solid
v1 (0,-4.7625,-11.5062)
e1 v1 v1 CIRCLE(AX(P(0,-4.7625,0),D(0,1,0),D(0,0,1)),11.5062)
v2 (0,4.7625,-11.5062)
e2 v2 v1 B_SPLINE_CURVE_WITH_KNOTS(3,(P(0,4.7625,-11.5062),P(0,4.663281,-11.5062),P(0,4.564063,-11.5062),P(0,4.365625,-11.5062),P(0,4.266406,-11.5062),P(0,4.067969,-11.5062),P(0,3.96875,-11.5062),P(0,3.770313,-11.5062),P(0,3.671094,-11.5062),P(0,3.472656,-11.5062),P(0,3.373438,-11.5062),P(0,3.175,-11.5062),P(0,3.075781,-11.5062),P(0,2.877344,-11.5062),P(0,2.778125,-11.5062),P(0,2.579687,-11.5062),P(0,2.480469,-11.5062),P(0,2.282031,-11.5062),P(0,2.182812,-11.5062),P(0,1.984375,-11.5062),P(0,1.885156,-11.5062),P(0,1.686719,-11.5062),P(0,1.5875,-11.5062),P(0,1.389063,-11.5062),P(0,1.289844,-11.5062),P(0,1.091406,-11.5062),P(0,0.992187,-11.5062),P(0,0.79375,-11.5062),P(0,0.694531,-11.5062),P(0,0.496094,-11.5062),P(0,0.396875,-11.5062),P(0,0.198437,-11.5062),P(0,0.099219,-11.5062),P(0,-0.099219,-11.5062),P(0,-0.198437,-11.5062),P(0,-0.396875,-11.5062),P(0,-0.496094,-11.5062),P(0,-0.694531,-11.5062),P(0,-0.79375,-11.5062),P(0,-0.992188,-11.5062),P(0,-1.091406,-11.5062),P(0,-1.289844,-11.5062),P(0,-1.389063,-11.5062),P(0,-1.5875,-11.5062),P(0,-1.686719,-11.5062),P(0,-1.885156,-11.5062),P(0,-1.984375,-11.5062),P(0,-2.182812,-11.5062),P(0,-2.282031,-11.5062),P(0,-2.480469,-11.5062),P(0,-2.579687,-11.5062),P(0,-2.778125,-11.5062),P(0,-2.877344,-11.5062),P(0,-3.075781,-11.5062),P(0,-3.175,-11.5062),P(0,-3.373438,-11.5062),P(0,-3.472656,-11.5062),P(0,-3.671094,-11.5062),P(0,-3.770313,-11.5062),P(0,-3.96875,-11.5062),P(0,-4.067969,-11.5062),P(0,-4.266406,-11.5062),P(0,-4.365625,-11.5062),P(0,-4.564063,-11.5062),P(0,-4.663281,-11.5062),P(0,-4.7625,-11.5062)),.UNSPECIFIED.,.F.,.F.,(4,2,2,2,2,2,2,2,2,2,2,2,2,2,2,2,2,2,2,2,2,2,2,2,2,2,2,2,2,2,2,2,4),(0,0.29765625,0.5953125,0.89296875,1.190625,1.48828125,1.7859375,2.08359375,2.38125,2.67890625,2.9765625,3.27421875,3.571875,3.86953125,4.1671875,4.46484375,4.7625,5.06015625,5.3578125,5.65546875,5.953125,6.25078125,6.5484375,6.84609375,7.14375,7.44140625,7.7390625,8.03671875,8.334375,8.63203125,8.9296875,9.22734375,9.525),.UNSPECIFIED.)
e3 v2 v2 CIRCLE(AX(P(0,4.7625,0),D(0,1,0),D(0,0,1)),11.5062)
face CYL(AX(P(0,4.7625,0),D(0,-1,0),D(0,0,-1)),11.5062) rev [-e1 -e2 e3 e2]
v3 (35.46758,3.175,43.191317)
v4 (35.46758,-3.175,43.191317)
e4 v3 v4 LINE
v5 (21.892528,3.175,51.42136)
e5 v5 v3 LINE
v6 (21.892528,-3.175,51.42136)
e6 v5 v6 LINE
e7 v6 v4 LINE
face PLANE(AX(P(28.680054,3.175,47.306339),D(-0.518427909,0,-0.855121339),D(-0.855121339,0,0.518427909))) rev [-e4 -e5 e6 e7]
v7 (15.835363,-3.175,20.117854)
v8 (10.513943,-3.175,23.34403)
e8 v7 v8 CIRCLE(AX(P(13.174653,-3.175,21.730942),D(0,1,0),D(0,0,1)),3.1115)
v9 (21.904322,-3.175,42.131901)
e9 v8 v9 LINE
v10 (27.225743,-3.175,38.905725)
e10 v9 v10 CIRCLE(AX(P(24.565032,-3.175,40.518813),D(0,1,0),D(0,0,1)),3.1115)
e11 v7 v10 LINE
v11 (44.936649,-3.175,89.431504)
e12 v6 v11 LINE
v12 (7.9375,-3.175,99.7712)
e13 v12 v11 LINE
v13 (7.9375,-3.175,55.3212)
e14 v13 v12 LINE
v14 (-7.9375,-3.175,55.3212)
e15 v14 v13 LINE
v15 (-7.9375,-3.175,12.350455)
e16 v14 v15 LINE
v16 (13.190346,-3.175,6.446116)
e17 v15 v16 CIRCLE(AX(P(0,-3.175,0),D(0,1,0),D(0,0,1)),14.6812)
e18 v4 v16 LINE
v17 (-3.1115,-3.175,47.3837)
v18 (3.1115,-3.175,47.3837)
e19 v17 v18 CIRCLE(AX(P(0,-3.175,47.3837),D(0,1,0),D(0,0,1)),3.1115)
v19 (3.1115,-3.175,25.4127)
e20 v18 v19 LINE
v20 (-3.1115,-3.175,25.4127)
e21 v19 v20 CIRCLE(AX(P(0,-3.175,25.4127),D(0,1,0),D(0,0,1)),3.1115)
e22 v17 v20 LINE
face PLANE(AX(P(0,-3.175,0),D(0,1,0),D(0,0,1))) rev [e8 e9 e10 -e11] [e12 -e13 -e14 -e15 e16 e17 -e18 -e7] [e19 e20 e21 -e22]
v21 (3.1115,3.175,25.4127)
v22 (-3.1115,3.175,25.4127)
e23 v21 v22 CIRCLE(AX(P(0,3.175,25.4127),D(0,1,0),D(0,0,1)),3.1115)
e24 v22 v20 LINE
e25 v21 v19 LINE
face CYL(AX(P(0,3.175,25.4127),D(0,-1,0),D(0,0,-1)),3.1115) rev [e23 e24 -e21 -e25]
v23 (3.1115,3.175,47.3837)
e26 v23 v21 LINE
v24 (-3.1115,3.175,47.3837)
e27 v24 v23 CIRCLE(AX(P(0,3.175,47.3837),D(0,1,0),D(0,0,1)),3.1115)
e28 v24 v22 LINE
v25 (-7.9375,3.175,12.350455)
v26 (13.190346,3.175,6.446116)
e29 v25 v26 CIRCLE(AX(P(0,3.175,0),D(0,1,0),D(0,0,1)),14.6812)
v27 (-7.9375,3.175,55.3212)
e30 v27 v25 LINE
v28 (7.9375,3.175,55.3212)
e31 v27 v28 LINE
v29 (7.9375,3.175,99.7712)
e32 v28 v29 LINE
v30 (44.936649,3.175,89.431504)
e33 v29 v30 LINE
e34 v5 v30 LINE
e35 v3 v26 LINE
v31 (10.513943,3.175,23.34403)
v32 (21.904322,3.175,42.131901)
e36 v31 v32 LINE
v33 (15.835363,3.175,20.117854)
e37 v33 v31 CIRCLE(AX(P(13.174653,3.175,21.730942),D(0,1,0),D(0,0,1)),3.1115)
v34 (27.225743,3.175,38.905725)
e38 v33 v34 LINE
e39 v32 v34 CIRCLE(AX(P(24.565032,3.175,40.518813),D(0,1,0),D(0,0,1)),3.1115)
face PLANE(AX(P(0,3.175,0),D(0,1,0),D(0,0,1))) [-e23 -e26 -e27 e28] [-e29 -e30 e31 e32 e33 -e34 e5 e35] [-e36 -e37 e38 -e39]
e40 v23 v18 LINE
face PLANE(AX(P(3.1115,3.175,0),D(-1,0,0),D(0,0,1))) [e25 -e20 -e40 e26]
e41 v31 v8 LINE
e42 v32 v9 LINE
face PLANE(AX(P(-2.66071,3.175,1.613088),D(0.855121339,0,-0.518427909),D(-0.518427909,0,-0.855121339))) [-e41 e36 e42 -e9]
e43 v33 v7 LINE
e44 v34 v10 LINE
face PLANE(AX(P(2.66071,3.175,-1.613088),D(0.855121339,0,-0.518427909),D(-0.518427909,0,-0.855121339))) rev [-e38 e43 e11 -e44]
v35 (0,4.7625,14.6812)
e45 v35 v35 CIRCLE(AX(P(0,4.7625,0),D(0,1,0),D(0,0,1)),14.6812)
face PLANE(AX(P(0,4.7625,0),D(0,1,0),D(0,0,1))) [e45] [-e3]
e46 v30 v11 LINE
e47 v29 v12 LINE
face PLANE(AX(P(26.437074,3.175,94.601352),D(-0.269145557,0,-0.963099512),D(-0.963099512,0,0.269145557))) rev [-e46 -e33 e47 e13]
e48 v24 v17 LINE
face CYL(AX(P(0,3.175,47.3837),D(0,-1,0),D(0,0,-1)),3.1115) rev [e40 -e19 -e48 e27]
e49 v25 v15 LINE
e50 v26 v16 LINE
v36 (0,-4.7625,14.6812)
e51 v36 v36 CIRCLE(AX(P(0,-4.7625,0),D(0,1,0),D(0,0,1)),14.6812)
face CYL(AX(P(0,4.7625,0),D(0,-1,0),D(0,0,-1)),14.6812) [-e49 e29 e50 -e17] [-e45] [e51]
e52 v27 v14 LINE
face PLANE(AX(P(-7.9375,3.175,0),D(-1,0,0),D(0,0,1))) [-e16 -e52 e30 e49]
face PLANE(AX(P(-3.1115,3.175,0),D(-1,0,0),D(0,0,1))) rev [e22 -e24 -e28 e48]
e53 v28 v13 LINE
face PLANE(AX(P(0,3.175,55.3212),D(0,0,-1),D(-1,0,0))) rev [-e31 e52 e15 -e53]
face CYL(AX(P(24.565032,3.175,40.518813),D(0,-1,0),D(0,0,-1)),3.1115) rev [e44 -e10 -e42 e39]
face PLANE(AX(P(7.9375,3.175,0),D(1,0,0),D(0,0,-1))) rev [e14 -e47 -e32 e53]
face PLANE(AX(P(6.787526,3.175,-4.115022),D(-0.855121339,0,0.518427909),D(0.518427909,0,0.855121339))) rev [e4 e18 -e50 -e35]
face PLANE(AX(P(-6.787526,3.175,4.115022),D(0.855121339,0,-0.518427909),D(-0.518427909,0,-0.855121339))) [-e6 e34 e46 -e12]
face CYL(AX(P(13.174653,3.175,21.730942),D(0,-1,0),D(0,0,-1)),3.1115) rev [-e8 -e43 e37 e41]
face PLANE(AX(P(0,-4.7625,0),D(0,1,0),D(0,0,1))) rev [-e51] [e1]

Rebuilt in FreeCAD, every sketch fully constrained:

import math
import FreeCAD as App
import Part
import Sketcher

V = App.Vector
Q = App.Units.Quantity

doc = App.newDocument("Part")
body = doc.addObject("PartDesign::Body", "Body")

# Sketch on XZ plane
sketch1 = body.newObject("Sketcher::SketchObject", "Sketch")
sketch1.AttachmentSupport = (doc.getObject("XZ_Plane"), [""])
sketch1.MapMode = "FlatFace"
sketch1.addGeometry([
    Part.Circle(V(0, 0, 0), V(0, 0, 1), 15),
    Part.Circle(V(0, 0, 0), V(0, 0, 1), 12),
], False)
sketch1.addConstraint([
    Sketcher.Constraint("Coincident", 0, 3, -1, 1),
    Sketcher.Constraint("Coincident", 1, 3, -1, 1),
    Sketcher.Constraint("Diameter", 0, Q("1.156 in")),
    Sketcher.Constraint("Diameter", 1, Q("0.906 in")),
])
pad1 = body.newObject("PartDesign::Pad", "Pad")
pad1.Profile = sketch1
pad1.Length = Q("0.375 in")
pad1.Midplane = True

# Sketch on XZ plane
sketch2 = body.newObject("Sketcher::SketchObject", "Sketch001")
sketch2.AttachmentSupport = (doc.getObject("XZ_Plane"), [""])
sketch2.MapMode = "FlatFace"
sketch2.addGeometry([
    Part.LineSegment(V(-7.9375, 12.350455, 0), V(-7.9375, 55.3212, 0)),  # 0
    Part.LineSegment(V(-7.9375, 55.3212, 0), V(7.9375, 55.3212, 0)),  # 1
    Part.LineSegment(V(7.9375, 55.3212, 0), V(7.9375, 99.7712, 0)),  # 2
    Part.LineSegment(V(7.9375, 99.7712, 0), V(44.936649, 89.431504, 0)),  # 3
    Part.LineSegment(V(44.936649, 89.431504, 0), V(21.892528, 51.42136, 0)),  # 4
    Part.LineSegment(V(21.892528, 51.42136, 0), V(28.680054, 47.306339, 0)),  # 5
    Part.LineSegment(V(28.680054, 47.306339, 0), V(35.46758, 43.191317, 0)),  # 6
    Part.LineSegment(V(35.46758, 43.191317, 0), V(13.190346, 6.446116, 0)),  # 7
    Part.ArcOfCircle(Part.Circle(V(0, 0, 0), V(0, 0, 1), 14.6812), math.radians(26.044738), math.radians(122.728405)),  # 8
    Part.LineSegment(V(3.1115, 25.4127, 0), V(3.1115, 47.3837, 0)),  # 9
    Part.ArcOfCircle(Part.Circle(V(0, 47.3837, 0), V(0, 0, 1), 3.1115), math.radians(0), math.radians(180)),  # 10
    Part.LineSegment(V(-3.1115, 47.3837, 0), V(-3.1115, 25.4127, 0)),  # 11
    Part.ArcOfCircle(Part.Circle(V(0, 25.4127, 0), V(0, 0, 1), 3.1115), math.radians(180), math.radians(360)),  # 12
    Part.LineSegment(V(15.835363, 20.117854, 0), V(27.225743, 38.905725, 0)),  # 13
    Part.ArcOfCircle(Part.Circle(V(24.565032, 40.518813, 0), V(0, 0, 1), 3.1115), math.radians(-31.226858), math.radians(58.773142)),  # 14
    Part.ArcOfCircle(Part.Circle(V(24.565032, 40.518813, 0), V(0, 0, 1), 3.1115), math.radians(58.773142), math.radians(148.773142)),  # 15
    Part.LineSegment(V(21.904322, 42.131901, 0), V(10.513943, 23.34403, 0)),  # 16
    Part.ArcOfCircle(Part.Circle(V(13.174653, 21.730942, 0), V(0, 0, 1), 3.1115), math.radians(148.773142), math.radians(328.773142)),  # 17
], False)
sketch2.addConstraint([
    Sketcher.Constraint("Coincident", 0, 2, 1, 1),
    Sketcher.Constraint("Coincident", 1, 2, 2, 1),
    Sketcher.Constraint("Coincident", 2, 2, 3, 1),
    Sketcher.Constraint("Coincident", 3, 2, 4, 1),
    Sketcher.Constraint("Coincident", 4, 2, 5, 1),
    Sketcher.Constraint("Coincident", 5, 2, 6, 1),
    Sketcher.Constraint("Coincident", 6, 2, 7, 1),
    Sketcher.Constraint("Coincident", 7, 2, 8, 1),
    Sketcher.Constraint("Coincident", 8, 2, 0, 1),
    Sketcher.Constraint("Coincident", 9, 2, 10, 1),
    Sketcher.Constraint("Coincident", 10, 2, 11, 1),
    Sketcher.Constraint("Coincident", 11, 2, 12, 1),
    Sketcher.Constraint("Coincident", 12, 2, 9, 1),
    Sketcher.Constraint("Coincident", 13, 2, 14, 1),
    Sketcher.Constraint("Coincident", 14, 2, 15, 1),
    Sketcher.Constraint("Coincident", 15, 2, 16, 1),
    Sketcher.Constraint("Coincident", 16, 2, 17, 1),
    Sketcher.Constraint("Coincident", 17, 2, 13, 1),
    Sketcher.Constraint("Vertical", 0),
    Sketcher.Constraint("Horizontal", 1),
    Sketcher.Constraint("Vertical", 2),
    Sketcher.Constraint("Vertical", 9),
    Sketcher.Constraint("Vertical", 11),
    Sketcher.Constraint("Coincident", 8, 3, -1, 1),
    Sketcher.Constraint("Coincident", 15, 3, 14, 3),
    Sketcher.Constraint("PointOnObject", 10, 3, -2),
    Sketcher.Constraint("Radius", 8, Q("0.578 in")),
    Sketcher.Constraint("DistanceY", 2, 1, 2, 2, Q("1.75 in")),
    Sketcher.Constraint("Radius", 10, Q("0.1225 in")),
    Sketcher.Constraint("Radius", 14, Q("0.1225 in")),
    Sketcher.Constraint("Radius", 17, Q("0.1225 in")),
    Sketcher.Constraint("Distance", 4, Q("1.75 in")),
    Sketcher.Constraint("DistanceX", 1, 1, 1, 2, Q("0.625 in")),
    Sketcher.Constraint("DistanceY", 9, 1, 9, 2, Q("0.865 in")),
    Sketcher.Constraint("DistanceY", 11, 2, 11, 1, Q("0.865 in")),
    Sketcher.Constraint("DistanceX", 9, 2, 1, 2, Q("0.19 in")),
    Sketcher.Constraint("Distance", 5, Q("0.3125 in")),
    Sketcher.Constraint("Distance", 6, Q("0.3125 in")),
    Sketcher.Constraint("Distance", 13, Q("0.865 in")),
    Sketcher.Constraint("Distance", 16, Q("0.865 in")),
    Sketcher.Constraint("DistanceY", -1, 1, 0, 2, Q("2.178 in")),
    Sketcher.Constraint("DistanceY", 12, 3, 10, 3, Q("0.865 in")),
    Sketcher.Constraint("DistanceY", 10, 3, 0, 2, Q("0.3125 in")),
    Sketcher.Constraint("DistanceY", 9, 2, 1, 2, Q("0.3125 in")),
    Sketcher.Constraint("DistanceY", 10, 2, 0, 2, Q("0.3125 in")),
    Sketcher.Constraint("DistanceY", -1, 1, 15, 2, 42.131901),
    Sketcher.Constraint("DistanceY", 13, 2, 14, 2, 4.273798),
    Sketcher.Constraint("DistanceX", 15, 2, 14, 2, 4.273798),
    Sketcher.Constraint("DistanceX", -1, 1, 3, 2, 44.936649),
    Sketcher.Constraint("DistanceX", -1, 1, 4, 2, 21.892528),
    Sketcher.Constraint("DistanceY", -1, 1, 4, 2, 51.42136),
    Sketcher.Constraint("DistanceY", -1, 1, 5, 2, 47.306339),
    Sketcher.Constraint("DistanceX", -1, 1, 6, 2, 35.46758),
    Sketcher.Constraint("DistanceX", -1, 1, 14, 2, 26.178121),
    Sketcher.Constraint("DistanceY", -1, 1, 16, 2, 23.34403),
    Sketcher.Constraint("DistanceX", 17, 3, 14, 3, 11.39038),
    Sketcher.Constraint("DistanceY", 15, 3, 3, 2, 48.912691),
    Sketcher.Constraint("DistanceY", 7, 2, 8, 2, 5.904339),
])
pad2 = body.newObject("PartDesign::Pad", "Pad001")
pad2.Profile = sketch2
pad2.Length = Q("0.25 in")
pad2.Midplane = True

doc.recompute()
